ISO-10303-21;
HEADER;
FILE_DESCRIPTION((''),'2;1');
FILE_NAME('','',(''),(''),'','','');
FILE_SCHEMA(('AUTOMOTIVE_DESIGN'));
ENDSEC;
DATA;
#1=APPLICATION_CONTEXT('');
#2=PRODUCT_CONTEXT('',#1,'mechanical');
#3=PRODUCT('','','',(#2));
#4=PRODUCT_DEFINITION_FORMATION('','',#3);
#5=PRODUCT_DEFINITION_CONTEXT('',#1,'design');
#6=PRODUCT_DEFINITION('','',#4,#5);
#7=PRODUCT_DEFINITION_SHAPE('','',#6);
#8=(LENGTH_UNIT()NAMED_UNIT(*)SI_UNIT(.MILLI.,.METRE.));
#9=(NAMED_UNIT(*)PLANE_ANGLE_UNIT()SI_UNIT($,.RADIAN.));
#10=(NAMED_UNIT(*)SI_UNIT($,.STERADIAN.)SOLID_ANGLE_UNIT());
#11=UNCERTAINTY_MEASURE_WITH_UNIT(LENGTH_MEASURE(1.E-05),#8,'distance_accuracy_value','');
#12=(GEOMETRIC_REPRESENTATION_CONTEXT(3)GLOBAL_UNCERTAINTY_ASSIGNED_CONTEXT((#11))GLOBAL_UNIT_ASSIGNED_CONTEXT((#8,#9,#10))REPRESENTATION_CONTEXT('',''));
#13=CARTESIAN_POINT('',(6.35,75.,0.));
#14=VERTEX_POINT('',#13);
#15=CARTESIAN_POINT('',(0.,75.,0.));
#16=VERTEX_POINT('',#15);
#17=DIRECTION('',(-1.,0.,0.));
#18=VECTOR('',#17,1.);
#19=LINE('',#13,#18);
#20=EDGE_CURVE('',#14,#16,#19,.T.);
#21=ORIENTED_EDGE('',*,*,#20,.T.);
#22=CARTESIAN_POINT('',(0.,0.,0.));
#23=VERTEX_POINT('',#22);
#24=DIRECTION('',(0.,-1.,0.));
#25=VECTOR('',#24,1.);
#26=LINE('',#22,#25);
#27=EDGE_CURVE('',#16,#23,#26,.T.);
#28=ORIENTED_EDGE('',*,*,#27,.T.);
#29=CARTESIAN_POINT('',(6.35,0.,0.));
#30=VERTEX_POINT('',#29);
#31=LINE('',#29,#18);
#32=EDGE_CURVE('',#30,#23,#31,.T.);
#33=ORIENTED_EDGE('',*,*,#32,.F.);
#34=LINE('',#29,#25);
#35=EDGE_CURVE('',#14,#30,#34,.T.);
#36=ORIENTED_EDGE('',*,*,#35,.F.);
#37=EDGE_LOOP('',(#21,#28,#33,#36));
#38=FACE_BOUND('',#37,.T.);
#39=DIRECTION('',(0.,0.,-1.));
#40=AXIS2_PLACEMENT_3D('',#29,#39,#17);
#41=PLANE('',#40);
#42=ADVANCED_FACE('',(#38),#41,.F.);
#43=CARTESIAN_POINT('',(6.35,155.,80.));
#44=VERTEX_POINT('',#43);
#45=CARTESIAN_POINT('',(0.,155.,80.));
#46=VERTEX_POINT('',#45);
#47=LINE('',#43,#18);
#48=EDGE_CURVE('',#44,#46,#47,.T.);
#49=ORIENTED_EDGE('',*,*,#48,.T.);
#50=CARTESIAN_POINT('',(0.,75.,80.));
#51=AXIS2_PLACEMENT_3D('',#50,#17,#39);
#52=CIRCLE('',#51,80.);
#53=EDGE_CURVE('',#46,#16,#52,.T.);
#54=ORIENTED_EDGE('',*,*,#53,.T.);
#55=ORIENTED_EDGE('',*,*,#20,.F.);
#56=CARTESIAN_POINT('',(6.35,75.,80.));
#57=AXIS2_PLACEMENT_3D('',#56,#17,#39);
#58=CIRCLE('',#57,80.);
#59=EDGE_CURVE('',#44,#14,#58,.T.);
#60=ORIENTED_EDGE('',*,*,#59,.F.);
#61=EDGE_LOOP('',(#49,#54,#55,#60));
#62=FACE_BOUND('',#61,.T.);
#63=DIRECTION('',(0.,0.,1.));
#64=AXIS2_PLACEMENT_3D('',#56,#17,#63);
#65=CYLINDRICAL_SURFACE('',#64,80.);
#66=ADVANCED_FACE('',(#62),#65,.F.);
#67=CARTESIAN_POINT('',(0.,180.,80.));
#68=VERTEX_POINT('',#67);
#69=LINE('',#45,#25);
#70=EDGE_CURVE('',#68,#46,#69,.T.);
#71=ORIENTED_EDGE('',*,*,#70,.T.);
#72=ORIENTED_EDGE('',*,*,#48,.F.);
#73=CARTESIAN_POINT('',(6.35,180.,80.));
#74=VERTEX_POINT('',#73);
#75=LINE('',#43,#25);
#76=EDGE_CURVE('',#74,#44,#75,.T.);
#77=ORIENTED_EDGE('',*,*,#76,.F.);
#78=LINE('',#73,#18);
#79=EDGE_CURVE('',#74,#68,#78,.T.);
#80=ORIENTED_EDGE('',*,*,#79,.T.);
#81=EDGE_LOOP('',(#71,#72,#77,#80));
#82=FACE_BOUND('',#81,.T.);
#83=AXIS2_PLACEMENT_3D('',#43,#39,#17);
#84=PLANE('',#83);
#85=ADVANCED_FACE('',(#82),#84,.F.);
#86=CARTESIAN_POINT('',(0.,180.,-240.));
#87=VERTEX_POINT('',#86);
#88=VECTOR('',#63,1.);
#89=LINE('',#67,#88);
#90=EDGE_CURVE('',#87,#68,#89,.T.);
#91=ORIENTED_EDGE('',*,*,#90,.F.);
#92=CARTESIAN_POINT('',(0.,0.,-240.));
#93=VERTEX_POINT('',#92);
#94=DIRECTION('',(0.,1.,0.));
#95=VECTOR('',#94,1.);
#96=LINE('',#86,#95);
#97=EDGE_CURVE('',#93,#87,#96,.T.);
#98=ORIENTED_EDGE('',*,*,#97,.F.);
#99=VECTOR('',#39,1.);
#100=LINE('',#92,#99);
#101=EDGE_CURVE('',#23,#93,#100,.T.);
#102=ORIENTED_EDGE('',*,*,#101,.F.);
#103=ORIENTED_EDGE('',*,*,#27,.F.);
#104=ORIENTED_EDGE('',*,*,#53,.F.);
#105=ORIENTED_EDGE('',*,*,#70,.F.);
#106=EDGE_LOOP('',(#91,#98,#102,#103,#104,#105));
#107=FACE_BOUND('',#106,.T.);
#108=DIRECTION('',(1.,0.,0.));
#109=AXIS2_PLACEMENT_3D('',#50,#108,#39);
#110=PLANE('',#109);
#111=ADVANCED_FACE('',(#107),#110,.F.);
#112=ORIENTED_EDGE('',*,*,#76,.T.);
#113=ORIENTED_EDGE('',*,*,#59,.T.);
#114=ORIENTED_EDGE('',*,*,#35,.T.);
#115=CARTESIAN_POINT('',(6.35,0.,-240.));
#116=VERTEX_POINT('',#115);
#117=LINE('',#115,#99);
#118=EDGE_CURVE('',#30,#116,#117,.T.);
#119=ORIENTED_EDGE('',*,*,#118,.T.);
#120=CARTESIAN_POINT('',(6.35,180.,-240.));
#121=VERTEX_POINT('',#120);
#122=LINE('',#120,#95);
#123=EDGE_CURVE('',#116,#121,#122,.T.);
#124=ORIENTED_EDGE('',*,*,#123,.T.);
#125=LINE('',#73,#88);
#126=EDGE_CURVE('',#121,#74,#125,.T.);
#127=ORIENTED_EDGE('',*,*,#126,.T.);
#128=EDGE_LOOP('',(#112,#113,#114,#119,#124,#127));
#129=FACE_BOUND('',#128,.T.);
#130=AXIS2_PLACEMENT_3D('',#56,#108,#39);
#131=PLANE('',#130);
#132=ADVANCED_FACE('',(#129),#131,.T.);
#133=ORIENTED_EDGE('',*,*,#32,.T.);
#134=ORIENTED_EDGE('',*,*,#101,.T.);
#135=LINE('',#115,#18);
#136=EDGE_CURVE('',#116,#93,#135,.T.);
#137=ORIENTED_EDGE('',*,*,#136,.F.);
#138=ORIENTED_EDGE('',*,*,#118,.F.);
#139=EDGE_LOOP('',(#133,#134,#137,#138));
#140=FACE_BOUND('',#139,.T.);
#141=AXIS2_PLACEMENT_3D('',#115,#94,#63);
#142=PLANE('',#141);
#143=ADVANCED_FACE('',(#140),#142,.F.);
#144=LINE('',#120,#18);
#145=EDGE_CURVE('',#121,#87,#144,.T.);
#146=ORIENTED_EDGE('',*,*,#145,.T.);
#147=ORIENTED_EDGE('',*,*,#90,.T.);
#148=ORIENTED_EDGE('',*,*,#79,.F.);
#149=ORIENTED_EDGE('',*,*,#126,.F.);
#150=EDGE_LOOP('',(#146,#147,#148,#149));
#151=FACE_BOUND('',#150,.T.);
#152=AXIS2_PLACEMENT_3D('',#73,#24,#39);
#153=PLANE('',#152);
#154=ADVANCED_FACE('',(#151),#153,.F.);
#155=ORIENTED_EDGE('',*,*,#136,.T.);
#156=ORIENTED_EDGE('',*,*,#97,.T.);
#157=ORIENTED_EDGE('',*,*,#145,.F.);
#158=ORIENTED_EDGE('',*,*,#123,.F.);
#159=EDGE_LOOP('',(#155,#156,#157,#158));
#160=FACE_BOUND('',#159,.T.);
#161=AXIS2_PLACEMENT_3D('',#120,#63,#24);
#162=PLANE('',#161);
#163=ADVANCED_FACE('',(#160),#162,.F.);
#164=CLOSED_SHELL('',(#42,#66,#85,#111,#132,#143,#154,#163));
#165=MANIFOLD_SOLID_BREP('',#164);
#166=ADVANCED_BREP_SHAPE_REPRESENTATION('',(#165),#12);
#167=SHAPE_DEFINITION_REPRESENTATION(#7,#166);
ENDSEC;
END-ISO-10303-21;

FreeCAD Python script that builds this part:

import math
import FreeCAD as App
import Part
import Sketcher
Q = App.Units.Quantity

doc = App.newDocument("Part")
body = doc.addObject("PartDesign::Body", "Body")

sketch1 = body.newObject("Sketcher::SketchObject", "Sketch")
sketch1.AttachmentSupport = (doc.getObject("YZ_Plane"), [""])
sketch1.MapMode = "FlatFace"
sketch1.addGeometry(Part.LineSegment(App.Vector(75, 0, 0), App.Vector(0, 0, 0)), False)
sketch1.addGeometry(Part.LineSegment(App.Vector(0, 0, 0), App.Vector(0, -240, 0)), False)
sketch1.addGeometry(Part.LineSegment(App.Vector(0, -240, 0), App.Vector(180, -240, 0)), False)
sketch1.addGeometry(Part.LineSegment(App.Vector(180, -240, 0), App.Vector(180, 80, 0)), False)
sketch1.addGeometry(Part.LineSegment(App.Vector(180, 80, 0), App.Vector(155, 80, 0)), False)
sketch1.addGeometry(Part.ArcOfCircle(Part.Circle(App.Vector(75, 80, 0), App.Vector(0, 0, 1), 80), math.radians(-90), math.radians(0)), False)
sketch1.addConstraint(Sketcher.Constraint("Coincident", 0, 2, 1, 1))
sketch1.addConstraint(Sketcher.Constraint("Coincident", 1, 2, 2, 1))
sketch1.addConstraint(Sketcher.Constraint("Coincident", 2, 2, 3, 1))
sketch1.addConstraint(Sketcher.Constraint("Coincident", 3, 2, 4, 1))
sketch1.addConstraint(Sketcher.Constraint("Coincident", 4, 2, 5, 2))
sketch1.addConstraint(Sketcher.Constraint("Tangent", 5, 1, 0, 1))
sketch1.addConstraint(Sketcher.Constraint("Horizontal", 0))
sketch1.addConstraint(Sketcher.Constraint("Vertical", 1))
sketch1.addConstraint(Sketcher.Constraint("Horizontal", 2))
sketch1.addConstraint(Sketcher.Constraint("Vertical", 3))
sketch1.addConstraint(Sketcher.Constraint("Horizontal", 4))
sketch1.addConstraint(Sketcher.Constraint("Coincident", 0, 2, -1, 1))
sketch1.addConstraint(Sketcher.Constraint("Horizontal", 5, 3, 3, 2))
sketch1.addConstraint(Sketcher.Constraint("Radius", 5, Q("80 mm")))
sketch1.addConstraint(Sketcher.Constraint("DistanceX", 0, 2, 0, 1, Q("75 mm")))
sketch1.addConstraint(Sketcher.Constraint("DistanceX", 2, 1, 2, 2, Q("180 mm")))
sketch1.addConstraint(Sketcher.Constraint("DistanceY", 1, 2, 1, 1, Q("240 mm")))
pad1 = body.newObject("PartDesign::Pad", "Pad")
pad1.Profile = sketch1
pad1.Length = 6.35

doc.recompute()
